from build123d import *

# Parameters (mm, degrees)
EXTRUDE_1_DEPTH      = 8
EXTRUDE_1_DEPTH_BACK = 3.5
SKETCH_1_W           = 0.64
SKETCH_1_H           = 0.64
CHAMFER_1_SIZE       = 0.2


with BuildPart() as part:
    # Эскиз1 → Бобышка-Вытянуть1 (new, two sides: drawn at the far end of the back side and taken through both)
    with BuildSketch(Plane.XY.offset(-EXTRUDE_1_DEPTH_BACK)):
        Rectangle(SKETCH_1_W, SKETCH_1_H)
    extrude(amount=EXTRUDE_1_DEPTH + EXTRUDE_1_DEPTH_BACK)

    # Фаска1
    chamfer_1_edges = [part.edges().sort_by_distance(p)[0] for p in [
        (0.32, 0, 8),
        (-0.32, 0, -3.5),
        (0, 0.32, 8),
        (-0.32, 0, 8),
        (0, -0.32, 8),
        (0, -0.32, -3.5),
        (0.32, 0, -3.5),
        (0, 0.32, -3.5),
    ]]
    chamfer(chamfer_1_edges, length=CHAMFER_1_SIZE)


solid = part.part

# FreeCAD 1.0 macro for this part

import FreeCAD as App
import Part
import Sketcher

V = App.Vector
Q = App.Units.Quantity


def edges_at(feature, points):
    """Names of the edges that pass closest to the given points."""
    edges = feature.Shape.Edges
    near = lambda p: min(range(len(edges)), key=lambda i: edges[i].distToShape(Part.Vertex(*p))[0])
    return sorted({f"Edge{near(p) + 1}" for p in points})


def add_polygon(sketch, points):
    """Adds a closed chain of lines whose ends are joined by coincident constraints."""
    first, n = sketch.GeometryCount, len(points)
    for a, b in zip(points, points[1:] + points[:1]):
        sketch.addGeometry(Part.LineSegment(App.Vector(*a, 0), App.Vector(*b, 0)), False)
    for i in range(n):
        sketch.addConstraint(Sketcher.Constraint("Coincident", first + i, 2, first + (i + 1) % n, 1))

doc = App.newDocument("Part")
body = doc.addObject("PartDesign::Body", "Body")

# Sketch on XY plane
sketch1 = doc.addObject("Sketcher::SketchObject", "Sketch")
body.addObject(sketch1)
sketch1.AttachmentSupport = (doc.XY_Plane, [""])
sketch1.MapMode = "FlatFace"
add_polygon(sketch1, [(-0.32, 0.32), (-0.32, -0.32), (0.32, -0.32), (0.32, 0.32)])  # lines 0-3
sketch1.addConstraint([
    Sketcher.Constraint("Vertical", 0),
    Sketcher.Constraint("Horizontal", 1),
    Sketcher.Constraint("Vertical", 2),
    Sketcher.Constraint("Horizontal", 3),
    Sketcher.Constraint("Symmetric", 0, 2, 2, 2, -1, 1),
    Sketcher.Constraint("Equal", 3, 0),
    Sketcher.Constraint("DistanceX", 1, 1, 1, 2, Q("0.64 mm")),
])
pad1 = doc.addObject("PartDesign::Pad", "Pad")
body.addObject(pad1)
pad1.Profile = sketch1
pad1.Type = "TwoLengths"
pad1.Length = 8
pad1.Length2 = 3.5
doc.recompute()

chamfer = doc.addObject("PartDesign::Chamfer", "Chamfer")
body.addObject(chamfer)
chamfer.Base = (pad1, edges_at(pad1, [
    (0.32, 0, 8),
    (-0.32, 0, -3.5),
    (0, 0.32, 8),
    (-0.32, 0, 8),
    (0, -0.32, 8),
    (0, -0.32, -3.5),
    (0.32, 0, -3.5),
    (0, 0.32, -3.5),
]))
chamfer.Size = 0.2

doc.recompute()
